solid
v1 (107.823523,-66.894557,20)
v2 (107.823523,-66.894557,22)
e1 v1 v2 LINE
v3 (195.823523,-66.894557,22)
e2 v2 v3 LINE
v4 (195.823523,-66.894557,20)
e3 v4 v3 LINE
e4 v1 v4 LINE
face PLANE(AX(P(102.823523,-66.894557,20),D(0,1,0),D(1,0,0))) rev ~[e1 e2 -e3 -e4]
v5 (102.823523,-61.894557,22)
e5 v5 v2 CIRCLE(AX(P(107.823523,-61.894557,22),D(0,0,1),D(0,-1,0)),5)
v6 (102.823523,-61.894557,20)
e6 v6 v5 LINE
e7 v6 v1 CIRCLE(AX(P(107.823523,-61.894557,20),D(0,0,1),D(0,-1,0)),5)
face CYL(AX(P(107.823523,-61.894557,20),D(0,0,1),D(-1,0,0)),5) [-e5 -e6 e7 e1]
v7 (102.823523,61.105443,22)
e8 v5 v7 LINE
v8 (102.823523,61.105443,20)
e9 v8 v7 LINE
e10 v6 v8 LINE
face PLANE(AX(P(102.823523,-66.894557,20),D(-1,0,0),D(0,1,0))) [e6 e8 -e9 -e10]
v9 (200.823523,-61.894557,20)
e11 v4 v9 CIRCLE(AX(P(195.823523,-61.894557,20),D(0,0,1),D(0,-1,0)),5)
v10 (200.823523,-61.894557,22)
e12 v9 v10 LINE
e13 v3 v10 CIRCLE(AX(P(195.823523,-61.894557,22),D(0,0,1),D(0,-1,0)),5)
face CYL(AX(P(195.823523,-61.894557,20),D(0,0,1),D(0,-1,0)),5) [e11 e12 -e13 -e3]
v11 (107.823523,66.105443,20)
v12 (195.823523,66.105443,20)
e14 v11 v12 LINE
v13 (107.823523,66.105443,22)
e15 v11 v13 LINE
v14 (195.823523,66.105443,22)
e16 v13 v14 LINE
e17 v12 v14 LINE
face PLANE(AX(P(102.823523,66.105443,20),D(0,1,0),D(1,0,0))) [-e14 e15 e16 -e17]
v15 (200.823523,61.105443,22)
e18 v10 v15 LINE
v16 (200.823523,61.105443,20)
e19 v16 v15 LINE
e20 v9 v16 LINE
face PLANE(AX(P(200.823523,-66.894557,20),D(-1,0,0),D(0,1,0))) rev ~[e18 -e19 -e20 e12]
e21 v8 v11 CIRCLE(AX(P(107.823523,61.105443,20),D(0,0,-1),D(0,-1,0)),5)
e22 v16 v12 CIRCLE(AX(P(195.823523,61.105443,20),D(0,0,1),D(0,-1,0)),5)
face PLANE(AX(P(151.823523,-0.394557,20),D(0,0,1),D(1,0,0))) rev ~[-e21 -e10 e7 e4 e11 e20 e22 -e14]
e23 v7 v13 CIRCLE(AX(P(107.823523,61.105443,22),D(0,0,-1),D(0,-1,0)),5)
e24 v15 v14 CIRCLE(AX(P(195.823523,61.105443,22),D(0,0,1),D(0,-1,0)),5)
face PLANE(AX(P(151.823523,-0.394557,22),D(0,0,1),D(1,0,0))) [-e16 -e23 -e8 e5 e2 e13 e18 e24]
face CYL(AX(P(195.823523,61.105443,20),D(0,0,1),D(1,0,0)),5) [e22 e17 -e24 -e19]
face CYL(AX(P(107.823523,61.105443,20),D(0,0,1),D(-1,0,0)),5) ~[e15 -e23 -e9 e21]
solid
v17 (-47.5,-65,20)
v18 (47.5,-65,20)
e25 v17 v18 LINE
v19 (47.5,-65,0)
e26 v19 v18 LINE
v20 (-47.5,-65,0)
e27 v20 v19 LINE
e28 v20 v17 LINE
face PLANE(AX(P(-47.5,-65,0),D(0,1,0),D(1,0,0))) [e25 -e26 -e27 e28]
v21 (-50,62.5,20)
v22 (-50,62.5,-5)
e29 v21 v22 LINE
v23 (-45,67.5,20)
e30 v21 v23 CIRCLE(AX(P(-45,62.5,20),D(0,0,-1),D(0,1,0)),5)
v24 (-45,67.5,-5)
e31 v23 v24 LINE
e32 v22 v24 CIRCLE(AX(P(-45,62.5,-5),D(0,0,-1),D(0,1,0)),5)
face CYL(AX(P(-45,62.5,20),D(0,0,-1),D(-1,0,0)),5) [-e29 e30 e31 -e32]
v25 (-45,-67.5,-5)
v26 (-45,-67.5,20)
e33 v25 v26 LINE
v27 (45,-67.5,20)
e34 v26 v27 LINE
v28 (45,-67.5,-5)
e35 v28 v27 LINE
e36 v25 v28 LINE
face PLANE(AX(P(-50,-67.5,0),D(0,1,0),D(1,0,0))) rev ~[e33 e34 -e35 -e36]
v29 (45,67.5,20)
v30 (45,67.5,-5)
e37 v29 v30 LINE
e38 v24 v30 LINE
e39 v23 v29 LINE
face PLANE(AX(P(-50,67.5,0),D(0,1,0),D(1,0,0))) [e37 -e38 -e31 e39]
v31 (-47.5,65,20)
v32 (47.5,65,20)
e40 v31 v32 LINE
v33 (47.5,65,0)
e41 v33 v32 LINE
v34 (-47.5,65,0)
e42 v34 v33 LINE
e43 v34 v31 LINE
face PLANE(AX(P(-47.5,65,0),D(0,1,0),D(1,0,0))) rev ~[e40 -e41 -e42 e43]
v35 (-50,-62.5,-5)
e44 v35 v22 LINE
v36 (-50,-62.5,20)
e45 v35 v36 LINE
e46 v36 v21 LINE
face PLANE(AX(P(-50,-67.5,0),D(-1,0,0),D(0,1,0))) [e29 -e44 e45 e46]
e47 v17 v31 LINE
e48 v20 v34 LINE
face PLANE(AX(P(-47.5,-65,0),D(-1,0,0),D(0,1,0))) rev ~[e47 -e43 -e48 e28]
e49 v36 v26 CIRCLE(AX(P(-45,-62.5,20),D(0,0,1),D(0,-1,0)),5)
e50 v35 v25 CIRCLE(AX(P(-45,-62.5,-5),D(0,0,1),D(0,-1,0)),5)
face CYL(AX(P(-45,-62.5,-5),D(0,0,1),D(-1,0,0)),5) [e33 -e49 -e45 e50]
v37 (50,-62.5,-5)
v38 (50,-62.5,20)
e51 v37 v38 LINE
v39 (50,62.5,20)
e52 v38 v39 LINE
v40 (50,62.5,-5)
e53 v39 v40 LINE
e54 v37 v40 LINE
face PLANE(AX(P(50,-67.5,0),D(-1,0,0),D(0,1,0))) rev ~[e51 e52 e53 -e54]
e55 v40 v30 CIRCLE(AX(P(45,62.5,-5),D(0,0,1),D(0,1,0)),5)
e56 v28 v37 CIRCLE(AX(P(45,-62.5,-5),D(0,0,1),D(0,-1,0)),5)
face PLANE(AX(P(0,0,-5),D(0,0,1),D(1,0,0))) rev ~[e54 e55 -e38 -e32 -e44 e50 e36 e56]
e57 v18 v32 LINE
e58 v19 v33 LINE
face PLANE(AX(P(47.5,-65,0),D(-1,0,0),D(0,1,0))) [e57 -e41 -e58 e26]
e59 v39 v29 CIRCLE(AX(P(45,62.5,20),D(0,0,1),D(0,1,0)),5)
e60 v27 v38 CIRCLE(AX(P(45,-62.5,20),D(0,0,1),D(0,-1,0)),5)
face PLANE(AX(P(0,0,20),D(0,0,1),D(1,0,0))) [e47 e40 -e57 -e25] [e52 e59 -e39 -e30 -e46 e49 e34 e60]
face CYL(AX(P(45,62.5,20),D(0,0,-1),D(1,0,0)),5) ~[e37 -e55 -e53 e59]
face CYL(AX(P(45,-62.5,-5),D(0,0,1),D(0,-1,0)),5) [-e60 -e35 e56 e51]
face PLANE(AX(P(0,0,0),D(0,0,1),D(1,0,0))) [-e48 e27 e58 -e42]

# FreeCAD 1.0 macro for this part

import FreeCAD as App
import Part
import Sketcher
from FreeCAD import Vector


def edges_at(feature, points):
    """Names of the edges that pass closest to the given points."""
    edges = feature.Shape.Edges
    near = lambda p: min(range(len(edges)), key=lambda i: edges[i].distToShape(Part.Vertex(*p))[0])
    return sorted({f"Edge{near(p) + 1}" for p in points})

doc = App.newDocument("Part")
body = doc.addObject("PartDesign::Body", "Body")

# Sketch on XY plane
sketch1 = doc.addObject("Sketcher::SketchObject", "Sketch")
body.addObject(sketch1)
sketch1.AttachmentSupport = (doc.XY_Plane, [""])
sketch1.MapMode = "FlatFace"
sketch1.addGeometry(Part.LineSegment(Vector(-50, 68, 0), Vector(-50, -68, 0)), False)
sketch1.addGeometry(Part.LineSegment(Vector(-50, -68, 0), Vector(50, -68, 0)), False)
sketch1.addGeometry(Part.LineSegment(Vector(50, -68, 0), Vector(50, 68, 0)), False)
sketch1.addGeometry(Part.LineSegment(Vector(50, 68, 0), Vector(-50, 68, 0)), False)
sketch1.addConstraint(Sketcher.Constraint("Coincident", 0, 2, 1, 1))
sketch1.addConstraint(Sketcher.Constraint("Coincident", 1, 2, 2, 1))
sketch1.addConstraint(Sketcher.Constraint("Coincident", 2, 2, 3, 1))
sketch1.addConstraint(Sketcher.Constraint("Coincident", 3, 2, 0, 1))
sketch1.addConstraint(Sketcher.Constraint("Vertical", 0))
sketch1.addConstraint(Sketcher.Constraint("Horizontal", 1))
sketch1.addConstraint(Sketcher.Constraint("Vertical", 2))
sketch1.addConstraint(Sketcher.Constraint("Horizontal", 3))
sketch1.addConstraint(Sketcher.Constraint("Symmetric", 0, 2, 2, 2, -1, 1))
sketch1.addConstraint(Sketcher.Constraint("DistanceX", 1, 1, 1, 2, 100.0))
sketch1.addConstraint(Sketcher.Constraint("DistanceY", 0, 2, 0, 1, 135.0))
pad1 = doc.addObject("PartDesign::Pad", "Pad")
body.addObject(pad1)
pad1.Profile = sketch1
pad1.Length = 5
pad1.Reversed = True

# Sketch on XY plane
sketch2 = doc.addObject("Sketcher::SketchObject", "Sketch001")
body.addObject(sketch2)
sketch2.AttachmentSupport = (doc.XY_Plane, [""])
sketch2.MapMode = "FlatFace"
sketch2.addGeometry(Part.LineSegment(Vector(-50, 68, 0), Vector(-50, -68, 0)), False)
sketch2.addGeometry(Part.LineSegment(Vector(-50, -68, 0), Vector(50, -68, 0)), False)
sketch2.addGeometry(Part.LineSegment(Vector(50, -68, 0), Vector(50, 68, 0)), False)
sketch2.addGeometry(Part.LineSegment(Vector(50, 68, 0), Vector(-50, 68, 0)), False)
sketch2.addGeometry(Part.LineSegment(Vector(48, -65, 0), Vector(-48, -65, 0)), False)
sketch2.addGeometry(Part.LineSegment(Vector(-48, -65, 0), Vector(-48, 65, 0)), False)
sketch2.addGeometry(Part.LineSegment(Vector(-48, 65, 0), Vector(48, 65, 0)), False)
sketch2.addGeometry(Part.LineSegment(Vector(48, 65, 0), Vector(48, -65, 0)), False)
sketch2.addConstraint(Sketcher.Constraint("Coincident", 0, 2, 1, 1))
sketch2.addConstraint(Sketcher.Constraint("Coincident", 1, 2, 2, 1))
sketch2.addConstraint(Sketcher.Constraint("Coincident", 2, 2, 3, 1))
sketch2.addConstraint(Sketcher.Constraint("Coincident", 3, 2, 0, 1))
sketch2.addConstraint(Sketcher.Constraint("Coincident", 4, 2, 5, 1))
sketch2.addConstraint(Sketcher.Constraint("Coincident", 5, 2, 6, 1))
sketch2.addConstraint(Sketcher.Constraint("Coincident", 6, 2, 7, 1))
sketch2.addConstraint(Sketcher.Constraint("Coincident", 7, 2, 4, 1))
sketch2.addConstraint(Sketcher.Constraint("Vertical", 0))
sketch2.addConstraint(Sketcher.Constraint("Horizontal", 1))
sketch2.addConstraint(Sketcher.Constraint("Vertical", 2))
sketch2.addConstraint(Sketcher.Constraint("Horizontal", 3))
sketch2.addConstraint(Sketcher.Constraint("Horizontal", 4))
sketch2.addConstraint(Sketcher.Constraint("Vertical", 5))
sketch2.addConstraint(Sketcher.Constraint("Horizontal", 6))
sketch2.addConstraint(Sketcher.Constraint("Vertical", 7))
sketch2.addConstraint(Sketcher.Constraint("Symmetric", 0, 2, 2, 2, -1, 1))
sketch2.addConstraint(Sketcher.Constraint("Symmetric", 4, 2, 6, 2, -1, 1))
sketch2.addConstraint(Sketcher.Constraint("DistanceX", 1, 1, 1, 2, 100.0))
sketch2.addConstraint(Sketcher.Constraint("DistanceX", 4, 2, 4, 1, 95.0))
sketch2.addConstraint(Sketcher.Constraint("DistanceY", 0, 2, 0, 1, 135.0))
sketch2.addConstraint(Sketcher.Constraint("DistanceY", 5, 1, 5, 2, 130.0))
pad2 = doc.addObject("PartDesign::Pad", "Pad001")
body.addObject(pad2)
pad2.Profile = sketch2
pad2.Length = 20
doc.recompute()

fillet = doc.addObject("PartDesign::Fillet", "Fillet")
body.addObject(fillet)
fillet.Base = (pad2, edges_at(pad2, [
    (50, -67.5, 7.5),
    (-50, -67.5, 7.5),
    (-50, 67.5, 7.5),
    (50, 67.5, 7.5),
]))
fillet.Radius = 5
body2 = doc.addObject("PartDesign::Body", "Body001")

# Sketch on XY plane
sketch3 = doc.addObject("Sketcher::SketchObject", "Sketch002")
body2.addObject(sketch3)
sketch3.AttachmentSupport = (doc.getObject("XY_Plane001"), [""])
sketch3.MapMode = "FlatFace"
sketch3.AttachmentOffset = App.Placement(Vector(0, 0, 20), App.Rotation())
sketch3.addGeometry(Part.LineSegment(Vector(103, 66, 0), Vector(103, -67, 0)), False)
sketch3.addGeometry(Part.LineSegment(Vector(103, -67, 0), Vector(201, -67, 0)), False)
sketch3.addGeometry(Part.LineSegment(Vector(201, -67, 0), Vector(201, 66, 0)), False)
sketch3.addGeometry(Part.LineSegment(Vector(201, 66, 0), Vector(103, 66, 0)), False)
sketch3.addConstraint(Sketcher.Constraint("Coincident", 0, 2, 1, 1))
sketch3.addConstraint(Sketcher.Constraint("Coincident", 1, 2, 2, 1))
sketch3.addConstraint(Sketcher.Constraint("Coincident", 2, 2, 3, 1))
sketch3.addConstraint(Sketcher.Constraint("Coincident", 3, 2, 0, 1))
sketch3.addConstraint(Sketcher.Constraint("Vertical", 0))
sketch3.addConstraint(Sketcher.Constraint("Horizontal", 1))
sketch3.addConstraint(Sketcher.Constraint("Vertical", 2))
sketch3.addConstraint(Sketcher.Constraint("Horizontal", 3))
sketch3.addConstraint(Sketcher.Constraint("DistanceX", 1, 1, 1, 2, 98.0))
sketch3.addConstraint(Sketcher.Constraint("DistanceY", 0, 2, 0, 1, 133.0))
sketch3.addConstraint(Sketcher.Constraint("DistanceX", -1, 1, 0, 2, 102.823523))
sketch3.addConstraint(Sketcher.Constraint("DistanceY", 0, 2, -1, 1, 66.894557))
pad3 = doc.addObject("PartDesign::Pad", "Pad002")
body2.addObject(pad3)
pad3.Profile = sketch3
pad3.Length = 2
doc.recompute()

fillet2 = doc.addObject("PartDesign::Fillet", "Fillet001")
body2.addObject(fillet2)
fillet2.Base = (pad3, edges_at(pad3, [
    (102.824, -66.895, 21),
    (200.824, -66.895, 21),
    (200.824, 66.105, 21),
    (102.824, 66.105, 21),
]))
fillet2.Radius = 5

doc.recompute()
